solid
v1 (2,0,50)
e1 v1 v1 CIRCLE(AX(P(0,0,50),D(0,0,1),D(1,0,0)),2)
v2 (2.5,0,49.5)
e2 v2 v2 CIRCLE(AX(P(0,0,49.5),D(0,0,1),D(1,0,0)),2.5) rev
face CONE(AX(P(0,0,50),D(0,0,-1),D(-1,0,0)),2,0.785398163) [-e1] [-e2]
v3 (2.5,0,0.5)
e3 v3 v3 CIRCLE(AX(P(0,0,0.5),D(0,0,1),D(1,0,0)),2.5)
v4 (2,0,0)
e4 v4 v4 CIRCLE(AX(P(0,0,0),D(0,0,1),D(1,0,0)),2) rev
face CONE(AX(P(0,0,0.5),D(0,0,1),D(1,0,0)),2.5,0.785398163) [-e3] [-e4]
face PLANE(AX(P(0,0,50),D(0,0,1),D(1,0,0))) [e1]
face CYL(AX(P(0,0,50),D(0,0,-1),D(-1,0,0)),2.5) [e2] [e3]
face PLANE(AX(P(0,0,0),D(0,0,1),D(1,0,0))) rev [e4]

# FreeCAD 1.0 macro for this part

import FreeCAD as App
import Part
import Sketcher

V = App.Vector


def edges_at(feature, points):
    """Names of the edges that pass closest to the given points."""
    edges = feature.Shape.Edges
    near = lambda p: min(range(len(edges)), key=lambda i: edges[i].distToShape(Part.Vertex(*p))[0])
    return sorted({f"Edge{near(p) + 1}" for p in points})

doc = App.newDocument("Part")
body = doc.addObject("PartDesign::Body", "Body")

sketch1 = body.newObject("Sketcher::SketchObject", "Sketch")
sketch1.AttachmentSupport = (doc.getObject("XY_Plane"), [""])
sketch1.MapMode = "FlatFace"
sketch1.addGeometry(Part.Circle(V(0, 0, 0), V(0, 0, 1), 2.5), False)
sketch1.addConstraint(Sketcher.Constraint("Coincident", 0, 3, -1, 1))
sketch1.addConstraint(Sketcher.Constraint("Diameter", 0, 5.0))
pad1 = body.newObject("PartDesign::Pad", "Pad")
pad1.Profile = sketch1
pad1.Length = 50
doc.recompute()

chamfer = body.newObject("PartDesign::Chamfer", "Chamfer")
chamfer.Base = (pad1, edges_at(pad1, [(-2.5, 0, 0), (-2.5, 0, 50)]))
chamfer.Size = 0.5

doc.recompute()
